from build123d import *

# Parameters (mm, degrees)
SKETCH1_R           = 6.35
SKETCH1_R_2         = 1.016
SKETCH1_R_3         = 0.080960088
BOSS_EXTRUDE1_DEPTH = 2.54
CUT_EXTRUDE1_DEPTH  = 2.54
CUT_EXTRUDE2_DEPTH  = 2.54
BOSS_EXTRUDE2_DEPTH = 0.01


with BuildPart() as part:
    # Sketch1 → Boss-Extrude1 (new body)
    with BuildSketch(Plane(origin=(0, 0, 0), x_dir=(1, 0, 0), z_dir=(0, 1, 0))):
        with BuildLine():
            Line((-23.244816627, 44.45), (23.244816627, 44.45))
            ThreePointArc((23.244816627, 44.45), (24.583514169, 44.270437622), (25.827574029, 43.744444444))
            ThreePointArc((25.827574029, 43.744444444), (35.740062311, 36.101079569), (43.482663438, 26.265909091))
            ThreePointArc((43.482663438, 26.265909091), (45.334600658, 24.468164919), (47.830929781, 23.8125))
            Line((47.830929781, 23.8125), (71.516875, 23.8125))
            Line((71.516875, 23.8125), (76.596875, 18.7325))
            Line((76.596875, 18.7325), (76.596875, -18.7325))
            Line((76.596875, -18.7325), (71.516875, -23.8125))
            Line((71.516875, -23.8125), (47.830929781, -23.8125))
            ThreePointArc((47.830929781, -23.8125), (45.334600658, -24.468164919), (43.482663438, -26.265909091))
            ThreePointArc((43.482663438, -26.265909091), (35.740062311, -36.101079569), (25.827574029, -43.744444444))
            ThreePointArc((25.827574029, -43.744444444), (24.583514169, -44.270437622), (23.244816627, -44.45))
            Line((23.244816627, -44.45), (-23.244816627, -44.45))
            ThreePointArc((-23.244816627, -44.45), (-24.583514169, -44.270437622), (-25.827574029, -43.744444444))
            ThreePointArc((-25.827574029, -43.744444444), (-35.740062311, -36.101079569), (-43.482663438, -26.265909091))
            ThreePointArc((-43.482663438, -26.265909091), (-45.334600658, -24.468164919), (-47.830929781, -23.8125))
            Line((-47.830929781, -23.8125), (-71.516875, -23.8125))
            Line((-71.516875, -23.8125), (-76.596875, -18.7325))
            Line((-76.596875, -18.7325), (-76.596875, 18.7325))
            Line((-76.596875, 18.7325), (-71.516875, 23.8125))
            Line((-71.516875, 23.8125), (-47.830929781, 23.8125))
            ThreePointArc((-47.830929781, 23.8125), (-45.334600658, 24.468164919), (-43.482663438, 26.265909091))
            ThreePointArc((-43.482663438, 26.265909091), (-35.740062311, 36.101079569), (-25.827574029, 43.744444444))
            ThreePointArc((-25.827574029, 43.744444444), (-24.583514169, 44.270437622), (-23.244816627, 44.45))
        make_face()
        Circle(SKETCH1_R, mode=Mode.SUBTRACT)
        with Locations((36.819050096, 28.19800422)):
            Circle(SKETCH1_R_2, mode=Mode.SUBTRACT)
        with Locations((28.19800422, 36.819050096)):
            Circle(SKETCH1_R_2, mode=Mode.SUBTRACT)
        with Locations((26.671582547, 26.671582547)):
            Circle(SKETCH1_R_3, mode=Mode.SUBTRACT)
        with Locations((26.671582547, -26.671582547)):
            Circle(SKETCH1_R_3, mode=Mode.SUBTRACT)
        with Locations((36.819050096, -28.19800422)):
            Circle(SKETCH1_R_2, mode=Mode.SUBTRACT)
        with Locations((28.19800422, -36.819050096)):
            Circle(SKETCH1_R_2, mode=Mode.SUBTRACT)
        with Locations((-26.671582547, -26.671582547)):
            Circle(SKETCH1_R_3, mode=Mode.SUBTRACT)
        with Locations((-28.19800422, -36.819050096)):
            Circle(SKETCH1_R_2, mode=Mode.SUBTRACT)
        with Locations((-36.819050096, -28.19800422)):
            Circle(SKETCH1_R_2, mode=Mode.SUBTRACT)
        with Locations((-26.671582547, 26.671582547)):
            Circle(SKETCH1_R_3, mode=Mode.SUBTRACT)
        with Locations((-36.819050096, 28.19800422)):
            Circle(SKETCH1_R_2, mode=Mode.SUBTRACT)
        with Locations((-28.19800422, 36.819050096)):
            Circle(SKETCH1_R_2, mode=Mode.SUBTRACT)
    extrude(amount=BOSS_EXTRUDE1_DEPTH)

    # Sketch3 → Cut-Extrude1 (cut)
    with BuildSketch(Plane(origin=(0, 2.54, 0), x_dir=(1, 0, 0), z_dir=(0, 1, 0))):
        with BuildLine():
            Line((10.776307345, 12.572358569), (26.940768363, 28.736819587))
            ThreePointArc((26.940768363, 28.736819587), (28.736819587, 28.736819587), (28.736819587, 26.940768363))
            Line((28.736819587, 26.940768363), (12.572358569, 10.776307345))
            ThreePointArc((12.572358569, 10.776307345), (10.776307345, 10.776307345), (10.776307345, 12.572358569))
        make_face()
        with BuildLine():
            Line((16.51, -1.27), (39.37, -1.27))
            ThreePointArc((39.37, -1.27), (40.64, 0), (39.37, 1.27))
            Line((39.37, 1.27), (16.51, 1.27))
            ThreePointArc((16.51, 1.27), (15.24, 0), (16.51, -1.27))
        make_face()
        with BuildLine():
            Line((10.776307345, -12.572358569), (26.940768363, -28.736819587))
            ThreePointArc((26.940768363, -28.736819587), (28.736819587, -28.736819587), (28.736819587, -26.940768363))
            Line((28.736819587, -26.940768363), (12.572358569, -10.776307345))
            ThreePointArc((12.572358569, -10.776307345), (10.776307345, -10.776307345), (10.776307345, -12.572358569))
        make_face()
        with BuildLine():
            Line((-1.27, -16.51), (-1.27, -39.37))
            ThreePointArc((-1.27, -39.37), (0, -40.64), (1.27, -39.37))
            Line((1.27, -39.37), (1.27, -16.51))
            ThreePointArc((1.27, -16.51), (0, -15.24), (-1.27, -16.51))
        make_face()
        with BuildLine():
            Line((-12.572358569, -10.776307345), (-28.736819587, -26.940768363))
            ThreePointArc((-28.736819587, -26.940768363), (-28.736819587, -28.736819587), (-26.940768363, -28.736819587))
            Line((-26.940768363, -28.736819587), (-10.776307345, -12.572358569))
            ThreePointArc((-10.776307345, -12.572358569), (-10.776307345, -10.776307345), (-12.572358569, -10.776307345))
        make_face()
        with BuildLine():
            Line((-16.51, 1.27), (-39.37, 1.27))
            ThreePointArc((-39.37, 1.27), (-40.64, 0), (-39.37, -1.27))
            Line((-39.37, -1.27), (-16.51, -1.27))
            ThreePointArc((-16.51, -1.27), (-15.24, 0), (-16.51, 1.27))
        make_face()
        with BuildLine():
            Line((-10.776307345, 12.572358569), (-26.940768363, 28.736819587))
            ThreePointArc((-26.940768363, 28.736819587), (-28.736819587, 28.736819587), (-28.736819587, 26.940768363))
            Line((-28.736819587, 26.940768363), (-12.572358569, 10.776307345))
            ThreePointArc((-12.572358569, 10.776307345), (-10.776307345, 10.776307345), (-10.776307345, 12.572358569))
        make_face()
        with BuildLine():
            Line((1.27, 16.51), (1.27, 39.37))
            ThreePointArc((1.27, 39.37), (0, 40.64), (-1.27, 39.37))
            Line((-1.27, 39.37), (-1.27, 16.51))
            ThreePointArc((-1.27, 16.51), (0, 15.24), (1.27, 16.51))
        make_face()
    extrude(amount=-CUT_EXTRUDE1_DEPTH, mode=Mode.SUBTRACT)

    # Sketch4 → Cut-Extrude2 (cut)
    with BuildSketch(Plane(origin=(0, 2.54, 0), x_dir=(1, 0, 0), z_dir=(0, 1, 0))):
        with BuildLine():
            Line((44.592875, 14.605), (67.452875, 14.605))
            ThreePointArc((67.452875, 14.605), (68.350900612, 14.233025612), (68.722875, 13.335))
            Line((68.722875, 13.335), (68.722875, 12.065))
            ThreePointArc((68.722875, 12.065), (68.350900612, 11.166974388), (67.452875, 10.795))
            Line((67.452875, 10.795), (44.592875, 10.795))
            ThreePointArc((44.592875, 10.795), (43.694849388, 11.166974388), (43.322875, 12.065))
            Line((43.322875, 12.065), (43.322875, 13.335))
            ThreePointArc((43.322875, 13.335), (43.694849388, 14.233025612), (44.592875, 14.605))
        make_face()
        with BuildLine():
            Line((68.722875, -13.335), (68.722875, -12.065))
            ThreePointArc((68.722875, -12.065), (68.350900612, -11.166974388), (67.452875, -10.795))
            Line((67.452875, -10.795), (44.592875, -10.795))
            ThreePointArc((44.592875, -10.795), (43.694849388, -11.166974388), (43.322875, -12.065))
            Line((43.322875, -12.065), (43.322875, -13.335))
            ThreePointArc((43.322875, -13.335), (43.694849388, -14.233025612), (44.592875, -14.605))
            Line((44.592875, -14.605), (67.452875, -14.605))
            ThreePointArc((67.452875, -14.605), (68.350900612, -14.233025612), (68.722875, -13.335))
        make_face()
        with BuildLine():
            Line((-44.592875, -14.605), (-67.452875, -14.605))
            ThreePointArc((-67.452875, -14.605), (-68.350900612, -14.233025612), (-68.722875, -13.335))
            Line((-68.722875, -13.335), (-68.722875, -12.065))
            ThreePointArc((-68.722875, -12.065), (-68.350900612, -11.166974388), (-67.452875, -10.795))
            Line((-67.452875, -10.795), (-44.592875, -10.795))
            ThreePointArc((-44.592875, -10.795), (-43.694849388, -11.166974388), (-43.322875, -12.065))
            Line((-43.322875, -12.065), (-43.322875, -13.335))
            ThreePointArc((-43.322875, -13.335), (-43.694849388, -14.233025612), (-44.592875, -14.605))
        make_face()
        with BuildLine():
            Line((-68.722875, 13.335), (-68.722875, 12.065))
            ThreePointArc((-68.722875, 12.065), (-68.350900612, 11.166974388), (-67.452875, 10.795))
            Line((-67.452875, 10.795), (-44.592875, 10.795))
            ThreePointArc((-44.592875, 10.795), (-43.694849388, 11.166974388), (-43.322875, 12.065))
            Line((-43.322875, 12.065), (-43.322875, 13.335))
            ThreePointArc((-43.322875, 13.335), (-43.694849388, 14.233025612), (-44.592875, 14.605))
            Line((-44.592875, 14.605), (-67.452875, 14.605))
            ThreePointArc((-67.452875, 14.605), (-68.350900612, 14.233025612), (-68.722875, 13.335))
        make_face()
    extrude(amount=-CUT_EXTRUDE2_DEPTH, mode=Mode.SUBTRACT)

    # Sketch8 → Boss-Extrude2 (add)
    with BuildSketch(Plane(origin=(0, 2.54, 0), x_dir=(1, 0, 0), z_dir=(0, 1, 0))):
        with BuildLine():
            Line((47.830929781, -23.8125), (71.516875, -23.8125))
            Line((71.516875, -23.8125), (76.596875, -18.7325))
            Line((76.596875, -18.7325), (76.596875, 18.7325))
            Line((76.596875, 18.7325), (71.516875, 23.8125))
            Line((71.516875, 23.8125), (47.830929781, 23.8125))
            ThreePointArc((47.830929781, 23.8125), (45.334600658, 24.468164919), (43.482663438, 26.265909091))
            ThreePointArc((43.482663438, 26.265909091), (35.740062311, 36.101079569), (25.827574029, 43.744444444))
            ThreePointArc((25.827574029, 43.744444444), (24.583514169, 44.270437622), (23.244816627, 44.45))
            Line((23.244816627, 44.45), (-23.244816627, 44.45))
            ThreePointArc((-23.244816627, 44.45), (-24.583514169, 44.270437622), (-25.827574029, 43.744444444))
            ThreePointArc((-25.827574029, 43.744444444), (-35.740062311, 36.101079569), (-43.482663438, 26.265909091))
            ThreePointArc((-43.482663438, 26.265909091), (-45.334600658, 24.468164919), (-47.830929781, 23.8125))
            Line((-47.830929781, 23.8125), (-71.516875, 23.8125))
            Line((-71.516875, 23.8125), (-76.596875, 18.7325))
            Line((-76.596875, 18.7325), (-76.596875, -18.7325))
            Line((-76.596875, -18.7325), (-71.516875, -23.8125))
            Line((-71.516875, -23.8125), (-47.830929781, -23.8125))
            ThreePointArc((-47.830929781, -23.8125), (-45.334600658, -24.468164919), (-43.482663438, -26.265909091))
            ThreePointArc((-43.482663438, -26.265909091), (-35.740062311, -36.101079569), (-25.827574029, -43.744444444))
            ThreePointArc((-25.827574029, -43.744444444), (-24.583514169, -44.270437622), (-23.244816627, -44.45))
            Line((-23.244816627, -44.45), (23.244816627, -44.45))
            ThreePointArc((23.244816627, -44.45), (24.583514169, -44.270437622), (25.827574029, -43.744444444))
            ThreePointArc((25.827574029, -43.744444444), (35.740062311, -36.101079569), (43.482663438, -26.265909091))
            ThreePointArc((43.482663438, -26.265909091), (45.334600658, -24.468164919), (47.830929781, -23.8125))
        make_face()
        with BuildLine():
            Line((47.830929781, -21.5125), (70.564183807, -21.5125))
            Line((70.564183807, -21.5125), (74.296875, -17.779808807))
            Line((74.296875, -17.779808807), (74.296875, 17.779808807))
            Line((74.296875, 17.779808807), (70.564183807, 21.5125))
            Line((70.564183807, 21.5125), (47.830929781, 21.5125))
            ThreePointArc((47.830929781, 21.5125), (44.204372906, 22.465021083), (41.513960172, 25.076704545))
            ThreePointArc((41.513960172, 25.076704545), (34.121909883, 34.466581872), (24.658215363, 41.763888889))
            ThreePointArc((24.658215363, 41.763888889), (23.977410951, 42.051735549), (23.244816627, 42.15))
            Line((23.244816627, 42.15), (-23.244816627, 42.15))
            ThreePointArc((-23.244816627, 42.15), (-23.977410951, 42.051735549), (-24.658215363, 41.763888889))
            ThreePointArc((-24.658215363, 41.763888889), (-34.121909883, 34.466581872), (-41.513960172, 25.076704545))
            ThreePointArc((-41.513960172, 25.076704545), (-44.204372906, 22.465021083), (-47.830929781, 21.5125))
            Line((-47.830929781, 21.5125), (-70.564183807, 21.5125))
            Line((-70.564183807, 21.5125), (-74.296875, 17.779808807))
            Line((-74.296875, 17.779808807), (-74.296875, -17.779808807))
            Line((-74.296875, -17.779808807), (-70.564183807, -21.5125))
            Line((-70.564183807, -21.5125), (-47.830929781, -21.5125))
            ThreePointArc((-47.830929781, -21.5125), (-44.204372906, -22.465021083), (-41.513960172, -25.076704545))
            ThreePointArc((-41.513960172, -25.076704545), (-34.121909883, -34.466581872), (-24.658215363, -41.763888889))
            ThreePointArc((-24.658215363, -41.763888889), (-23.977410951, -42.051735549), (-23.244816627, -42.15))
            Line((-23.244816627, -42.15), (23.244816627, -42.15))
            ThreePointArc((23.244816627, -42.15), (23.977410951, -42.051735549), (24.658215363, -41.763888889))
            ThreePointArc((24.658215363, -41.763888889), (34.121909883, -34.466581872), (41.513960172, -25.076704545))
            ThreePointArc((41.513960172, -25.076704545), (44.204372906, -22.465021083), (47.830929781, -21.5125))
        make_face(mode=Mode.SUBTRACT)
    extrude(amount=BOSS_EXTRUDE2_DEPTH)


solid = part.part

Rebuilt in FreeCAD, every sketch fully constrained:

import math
import FreeCAD as App
import Part
import Sketcher
from FreeCAD import Vector
Q = App.Units.Quantity

doc = App.newDocument("Part")
body = doc.addObject("PartDesign::Body", "Body")

# Sketch on XZ plane
sketch1 = body.newObject("Sketcher::SketchObject", "Sketch")
sketch1.AttachmentSupport = (doc.getObject("XZ_Plane"), [""])
sketch1.MapMode = "FlatFace"
sketch1.addGeometry([
    Part.LineSegment(Vector(23.244817, -44.45, 0), Vector(-23.244817, -44.45, 0)),  # 0
    Part.ArcOfCircle(Part.Circle(Vector(-23.244817, -39.37, 0), Vector(0, 0, 1), 5.08), math.radians(-120.558432), math.radians(-90)),  # 1
    Part.ArcOfCircle(Part.Circle(Vector(0, 0, 0), Vector(0, 0, 1), 50.8), math.radians(-148.865726), math.radians(-120.558432)),  # 2
    Part.ArcOfCircle(Part.Circle(Vector(-47.83093, -28.8925, 0), Vector(0, 0, 1), 5.08), math.radians(31.134274), math.radians(90)),  # 3
    Part.LineSegment(Vector(-47.83093, -23.8125, 0), Vector(-71.516875, -23.8125, 0)),  # 4
    Part.LineSegment(Vector(-71.516875, -23.8125, 0), Vector(-76.596875, -18.7325, 0)),  # 5
    Part.LineSegment(Vector(-76.596875, -18.7325, 0), Vector(-76.596875, 18.7325, 0)),  # 6
    Part.LineSegment(Vector(-76.596875, 18.7325, 0), Vector(-71.516875, 23.8125, 0)),  # 7
    Part.LineSegment(Vector(-71.516875, 23.8125, 0), Vector(-47.83093, 23.8125, 0)),  # 8
    Part.ArcOfCircle(Part.Circle(Vector(-47.83093, 28.8925, 0), Vector(0, 0, 1), 5.08), math.radians(-90), math.radians(-31.134274)),  # 9
    Part.ArcOfCircle(Part.Circle(Vector(0, 0, 0), Vector(0, 0, 1), 50.8), math.radians(120.558432), math.radians(148.865726)),  # 10
    Part.ArcOfCircle(Part.Circle(Vector(-23.244817, 39.37, 0), Vector(0, 0, 1), 5.08), math.radians(90), math.radians(120.558432)),  # 11
    Part.LineSegment(Vector(-23.244817, 44.45, 0), Vector(23.244817, 44.45, 0)),  # 12
    Part.ArcOfCircle(Part.Circle(Vector(23.244817, 39.37, 0), Vector(0, 0, 1), 5.08), math.radians(59.441568), math.radians(90)),  # 13
    Part.ArcOfCircle(Part.Circle(Vector(0, 0, 0), Vector(0, 0, 1), 50.8), math.radians(31.134274), math.radians(59.441568)),  # 14
    Part.ArcOfCircle(Part.Circle(Vector(47.83093, 28.8925, 0), Vector(0, 0, 1), 5.08), math.radians(-148.865726), math.radians(-90)),  # 15
    Part.LineSegment(Vector(47.83093, 23.8125, 0), Vector(71.516875, 23.8125, 0)),  # 16
    Part.LineSegment(Vector(71.516875, 23.8125, 0), Vector(76.596875, 18.7325, 0)),  # 17
    Part.LineSegment(Vector(76.596875, 18.7325, 0), Vector(76.596875, -18.7325, 0)),  # 18
    Part.LineSegment(Vector(76.596875, -18.7325, 0), Vector(71.516875, -23.8125, 0)),  # 19
    Part.LineSegment(Vector(71.516875, -23.8125, 0), Vector(47.83093, -23.8125, 0)),  # 20
    Part.ArcOfCircle(Part.Circle(Vector(47.83093, -28.8925, 0), Vector(0, 0, 1), 5.08), math.radians(90), math.radians(148.865726)),  # 21
    Part.ArcOfCircle(Part.Circle(Vector(0, 0, 0), Vector(0, 0, 1), 50.8), math.radians(-59.441568), math.radians(-31.134274)),  # 22
    Part.ArcOfCircle(Part.Circle(Vector(23.244817, -39.37, 0), Vector(0, 0, 1), 5.08), math.radians(-90), math.radians(-59.441568)),  # 23
    Part.Circle(Vector(28.198004, 36.81905, 0), Vector(0, 0, 1), 1.016),  # 24
    Part.Circle(Vector(36.81905, 28.198004, 0), Vector(0, 0, 1), 1.016),  # 25
    Part.Circle(Vector(26.671583, 26.671583, 0), Vector(0, 0, 1), 0.08096),  # 26
    Part.Circle(Vector(-28.198004, 36.81905, 0), Vector(0, 0, 1), 1.016),  # 27
    Part.Circle(Vector(-26.671583, 26.671583, 0), Vector(0, 0, 1), 0.08096),  # 28
    Part.Circle(Vector(-36.81905, 28.198004, 0), Vector(0, 0, 1), 1.016),  # 29
    Part.Circle(Vector(36.81905, -28.198004, 0), Vector(0, 0, 1), 1.016),  # 30
    Part.Circle(Vector(26.671583, -26.671583, 0), Vector(0, 0, 1), 0.08096),  # 31
    Part.Circle(Vector(28.198004, -36.81905, 0), Vector(0, 0, 1), 1.016),  # 32
    Part.Circle(Vector(0, 0, 0), Vector(0, 0, 1), 6.35),  # 33
    Part.Circle(Vector(-26.671583, -26.671583, 0), Vector(0, 0, 1), 0.08096),  # 34
    Part.Circle(Vector(-36.81905, -28.198004, 0), Vector(0, 0, 1), 1.016),  # 35
    Part.Circle(Vector(-28.198004, -36.81905, 0), Vector(0, 0, 1), 1.016),  # 36
], False)
sketch1.addConstraint([
    Sketcher.Constraint("Tangent", 0, 2, 1, 2),
    Sketcher.Constraint("Tangent", 1, 1, 2, 2),
    Sketcher.Constraint("Tangent", 2, 1, 3, 1),
    Sketcher.Constraint("Tangent", 3, 2, 4, 1),
    Sketcher.Constraint("Coincident", 4, 2, 5, 1),
    Sketcher.Constraint("Coincident", 5, 2, 6, 1),
    Sketcher.Constraint("Coincident", 6, 2, 7, 1),
    Sketcher.Constraint("Coincident", 7, 2, 8, 1),
    Sketcher.Constraint("Tangent", 8, 2, 9, 1),
    Sketcher.Constraint("Tangent", 9, 2, 10, 2),
    Sketcher.Constraint("Tangent", 10, 1, 11, 2),
    Sketcher.Constraint("Tangent", 11, 1, 12, 1),
    Sketcher.Constraint("Tangent", 12, 2, 13, 2),
    Sketcher.Constraint("Tangent", 13, 1, 14, 2),
    Sketcher.Constraint("Tangent", 14, 1, 15, 1),
    Sketcher.Constraint("Tangent", 15, 2, 16, 1),
    Sketcher.Constraint("Coincident", 16, 2, 17, 1),
    Sketcher.Constraint("Coincident", 17, 2, 18, 1),
    Sketcher.Constraint("Coincident", 18, 2, 19, 1),
    Sketcher.Constraint("Coincident", 19, 2, 20, 1),
    Sketcher.Constraint("Tangent", 20, 2, 21, 1),
    Sketcher.Constraint("Tangent", 21, 2, 22, 2),
    Sketcher.Constraint("Tangent", 22, 1, 23, 2),
    Sketcher.Constraint("Tangent", 23, 1, 0, 1),
    Sketcher.Constraint("Horizontal", 0),
    Sketcher.Constraint("Horizontal", 4),
    Sketcher.Constraint("Vertical", 6),
    Sketcher.Constraint("Horizontal", 8),
    Sketcher.Constraint("Horizontal", 12),
    Sketcher.Constraint("Horizontal", 16),
    Sketcher.Constraint("Vertical", 18),
    Sketcher.Constraint("Horizontal", 20),
    Sketcher.Constraint("Coincident", 2, 3, -1, 1),
    Sketcher.Constraint("Coincident", 10, 3, -1, 1),
    Sketcher.Constraint("Coincident", 14, 3, -1, 1),
    Sketcher.Constraint("Coincident", 22, 3, -1, 1),
    Sketcher.Constraint("Coincident", 33, 3, -1, 1),
    Sketcher.Constraint("Equal", 1, 3),
    Sketcher.Constraint("Equal", 3, 9),
    Sketcher.Constraint("Equal", 2, 10),
    Sketcher.Constraint("Equal", 9, 11),
    Sketcher.Constraint("Equal", 11, 13),
    Sketcher.Constraint("Equal", 10, 14),
    Sketcher.Constraint("Equal", 13, 15),
    Sketcher.Constraint("Equal", 15, 21),
    Sketcher.Constraint("Equal", 14, 22),
    Sketcher.Constraint("Equal", 21, 23),
    Sketcher.Constraint("Equal", 24, 25),
    Sketcher.Constraint("Equal", 25, 27),
    Sketcher.Constraint("Equal", 26, 28),
    Sketcher.Constraint("Equal", 27, 29),
    Sketcher.Constraint("Equal", 29, 30),
    Sketcher.Constraint("Equal", 28, 31),
    Sketcher.Constraint("Equal", 30, 32),
    Sketcher.Constraint("Equal", 31, 34),
    Sketcher.Constraint("Equal", 32, 35),
    Sketcher.Constraint("Equal", 35, 36),
    Sketcher.Constraint("Symmetric", 29, 3, 30, 3, -1, 1),
    Sketcher.Constraint("Symmetric", 28, 3, 31, 3, -1, 1),
    Sketcher.Constraint("Symmetric", 27, 3, 32, 3, -1, 1),
    Sketcher.Constraint("Symmetric", 26, 3, 34, 3, -1, 1),
    Sketcher.Constraint("Symmetric", 25, 3, 35, 3, -1, 1),
    Sketcher.Constraint("Symmetric", 24, 3, 36, 3, -1, 1),
    Sketcher.Constraint("Symmetric", 4, 2, 16, 2, -1, 1),
    Sketcher.Constraint("Symmetric", 5, 2, 17, 2, -1, 1),
    Sketcher.Constraint("Symmetric", 7, 2, 19, 2, -1, 1),
    Sketcher.Constraint("Symmetric", 24, 3, 27, 3, -2),
    Sketcher.Constraint("Symmetric", 26, 3, 28, 3, -2),
    Sketcher.Constraint("Symmetric", 25, 3, 29, 3, -2),
    Sketcher.Constraint("Symmetric", 7, 2, 16, 2, -2),
    Sketcher.Constraint("Perpendicular", 5, 7),
    Sketcher.Constraint("Perpendicular", 17, 19),
    Sketcher.Constraint("Horizontal", 6, 2, 17, 2),
    Sketcher.Constraint("Vertical", 1, 3, 11, 3),
    Sketcher.Constraint("Radius", 2, Q("2 in")),
    Sketcher.Constraint("Diameter", 33, Q("0.5 in")),
    Sketcher.Constraint("Radius", 1, Q("0.2 in")),
    Sketcher.Constraint("Diameter", 24, Q("0.08 in")),
    Sketcher.Constraint("DistanceY", 1, 3, 11, 3, Q("3.1 in")),
    Sketcher.Constraint("DistanceX", 5, 2, 4, 2, Q("0.2 in")),
    Sketcher.Constraint("DistanceY", 6, 1, 6, 2, Q("1.475 in")),
    Sketcher.Constraint("Diameter", 26, Q("0.16192 mm")),
    Sketcher.Constraint("DistanceX", 5, 2, -1, 1, Q("3.015625 in")),
    Sketcher.Constraint("DistanceY", -1, 1, 24, 3, Q("36.81905 mm")),
    Sketcher.Constraint("DistanceX", -1, 1, 25, 3, Q("36.81905 mm")),
    Sketcher.Constraint("DistanceX", 26, 3, 24, 3, Q("1.526422 mm")),
    Sketcher.Constraint("DistanceY", 26, 3, 25, 3, Q("1.526422 mm")),
    Sketcher.Constraint("DistanceX", 36, 3, 1, 1, Q("2.37043 mm")),
    Sketcher.Constraint("DistanceY", 1, 1, 34, 3, Q("17.072862 mm")),
])
pad1 = body.newObject("PartDesign::Pad", "Pad")
pad1.Profile = sketch1
pad1.Length = Q("0.1 in")
pad1.Reversed = True

# Sketch on XZ plane
sketch2 = body.newObject("Sketcher::SketchObject", "Sketch001")
sketch2.AttachmentSupport = (doc.getObject("XZ_Plane"), [""])
sketch2.MapMode = "FlatFace"
sketch2.AttachmentOffset = App.Placement(Vector(0, 0, -0.1 * 25.4), App.Rotation())
sketch2.addGeometry([
    Part.LineSegment(Vector(26.940768, -28.73682, 0), Vector(10.776307, -12.572359, 0)),  # 0
    Part.ArcOfCircle(Part.Circle(Vector(11.674333, -11.674333, 0), Vector(0, 0, 1), 1.27), math.radians(45), math.radians(225)),  # 1
    Part.LineSegment(Vector(12.572359, -10.776307, 0), Vector(28.73682, -26.940768, 0)),  # 2
    Part.ArcOfCircle(Part.Circle(Vector(27.838794, -27.838794, 0), Vector(0, 0, 1), 1.27), math.radians(-135), math.radians(45)),  # 3
    Part.LineSegment(Vector(16.51, 1.27, 0), Vector(39.37, 1.27, 0)),  # 4
    Part.ArcOfCircle(Part.Circle(Vector(39.37, 0, 0), Vector(0, 0, 1), 1.27), math.radians(-90), math.radians(90)),  # 5
    Part.LineSegment(Vector(39.37, -1.27, 0), Vector(16.51, -1.27, 0)),  # 6
    Part.ArcOfCircle(Part.Circle(Vector(16.51, 0, 0), Vector(0, 0, 1), 1.27), math.radians(90), math.radians(270)),  # 7
    Part.LineSegment(Vector(10.776307, 12.572359, 0), Vector(26.940768, 28.73682, 0)),  # 8
    Part.ArcOfCircle(Part.Circle(Vector(27.838794, 27.838794, 0), Vector(0, 0, 1), 1.27), math.radians(-45), math.radians(135)),  # 9
    Part.LineSegment(Vector(28.73682, 26.940768, 0), Vector(12.572359, 10.776307, 0)),  # 10
    Part.ArcOfCircle(Part.Circle(Vector(11.674333, 11.674333, 0), Vector(0, 0, 1), 1.27), math.radians(135), math.radians(315)),  # 11
    Part.LineSegment(Vector(-1.27, 16.51, 0), Vector(-1.27, 39.37, 0)),  # 12
    Part.ArcOfCircle(Part.Circle(Vector(0, 39.37, 0), Vector(0, 0, 1), 1.27), math.radians(0), math.radians(180)),  # 13
    Part.LineSegment(Vector(1.27, 39.37, 0), Vector(1.27, 16.51, 0)),  # 14
    Part.ArcOfCircle(Part.Circle(Vector(0, 16.51, 0), Vector(0, 0, 1), 1.27), math.radians(180), math.radians(360)),  # 15
    Part.LineSegment(Vector(-12.572359, 10.776307, 0), Vector(-28.73682, 26.940768, 0)),  # 16
    Part.ArcOfCircle(Part.Circle(Vector(-27.838794, 27.838794, 0), Vector(0, 0, 1), 1.27), math.radians(45), math.radians(225)),  # 17
    Part.LineSegment(Vector(-26.940768, 28.73682, 0), Vector(-10.776307, 12.572359, 0)),  # 18
    Part.ArcOfCircle(Part.Circle(Vector(-11.674333, 11.674333, 0), Vector(0, 0, 1), 1.27), math.radians(-135), math.radians(45)),  # 19
    Part.LineSegment(Vector(-16.51, -1.27, 0), Vector(-39.37, -1.27, 0)),  # 20
    Part.ArcOfCircle(Part.Circle(Vector(-39.37, 0, 0), Vector(0, 0, 1), 1.27), math.radians(90), math.radians(270)),  # 21
    Part.LineSegment(Vector(-39.37, 1.27, 0), Vector(-16.51, 1.27, 0)),  # 22
    Part.ArcOfCircle(Part.Circle(Vector(-16.51, 0, 0), Vector(0, 0, 1), 1.27), math.radians(-90), math.radians(90)),  # 23
    Part.LineSegment(Vector(-10.776307, -12.572359, 0), Vector(-26.940768, -28.73682, 0)),  # 24
    Part.ArcOfCircle(Part.Circle(Vector(-27.838794, -27.838794, 0), Vector(0, 0, 1), 1.27), math.radians(135), math.radians(315)),  # 25
    Part.LineSegment(Vector(-28.73682, -26.940768, 0), Vector(-12.572359, -10.776307, 0)),  # 26
    Part.ArcOfCircle(Part.Circle(Vector(-11.674333, -11.674333, 0), Vector(0, 0, 1), 1.27), math.radians(-45), math.radians(135)),  # 27
    Part.LineSegment(Vector(1.27, -16.51, 0), Vector(1.27, -39.37, 0)),  # 28
    Part.ArcOfCircle(Part.Circle(Vector(0, -39.37, 0), Vector(0, 0, 1), 1.27), math.radians(180), math.radians(360)),  # 29
    Part.LineSegment(Vector(-1.27, -39.37, 0), Vector(-1.27, -16.51, 0)),  # 30
    Part.ArcOfCircle(Part.Circle(Vector(0, -16.51, 0), Vector(0, 0, 1), 1.27), math.radians(0), math.radians(180)),  # 31
], False)
sketch2.addConstraint([
    Sketcher.Constraint("Tangent", 0, 2, 1, 2),
    Sketcher.Constraint("Tangent", 1, 1, 2, 1),
    Sketcher.Constraint("Tangent", 2, 2, 3, 2),
    Sketcher.Constraint("Tangent", 3, 1, 0, 1),
    Sketcher.Constraint("Tangent", 4, 2, 5, 2),
    Sketcher.Constraint("Tangent", 5, 1, 6, 1),
    Sketcher.Constraint("Tangent", 6, 2, 7, 2),
    Sketcher.Constraint("Tangent", 7, 1, 4, 1),
    Sketcher.Constraint("Tangent", 8, 2, 9, 2),
    Sketcher.Constraint("Tangent", 9, 1, 10, 1),
    Sketcher.Constraint("Tangent", 10, 2, 11, 2),
    Sketcher.Constraint("Tangent", 11, 1, 8, 1),
    Sketcher.Constraint("Tangent", 12, 2, 13, 2),
    Sketcher.Constraint("Tangent", 13, 1, 14, 1),
    Sketcher.Constraint("Tangent", 14, 2, 15, 2),
    Sketcher.Constraint("Tangent", 15, 1, 12, 1),
    Sketcher.Constraint("Tangent", 16, 2, 17, 2),
    Sketcher.Constraint("Tangent", 17, 1, 18, 1),
    Sketcher.Constraint("Tangent", 18, 2, 19, 2),
    Sketcher.Constraint("Tangent", 19, 1, 16, 1),
    Sketcher.Constraint("Tangent", 20, 2, 21, 2),
    Sketcher.Constraint("Tangent", 21, 1, 22, 1),
    Sketcher.Constraint("Tangent", 22, 2, 23, 2),
    Sketcher.Constraint("Tangent", 23, 1, 20, 1),
    Sketcher.Constraint("Tangent", 24, 2, 25, 2),
    Sketcher.Constraint("Tangent", 25, 1, 26, 1),
    Sketcher.Constraint("Tangent", 26, 2, 27, 2),
    Sketcher.Constraint("Tangent", 27, 1, 24, 1),
    Sketcher.Constraint("Tangent", 28, 2, 29, 2),
    Sketcher.Constraint("Tangent", 29, 1, 30, 1),
    Sketcher.Constraint("Tangent", 30, 2, 31, 2),
    Sketcher.Constraint("Tangent", 31, 1, 28, 1),
    Sketcher.Constraint("Horizontal", 4),
    Sketcher.Constraint("Horizontal", 6),
    Sketcher.Constraint("Vertical", 12),
    Sketcher.Constraint("Vertical", 14),
    Sketcher.Constraint("Horizontal", 20),
    Sketcher.Constraint("Horizontal", 22),
    Sketcher.Constraint("Vertical", 28),
    Sketcher.Constraint("Vertical", 30),
    Sketcher.Constraint("Equal", 1, 3),
    Sketcher.Constraint("Equal", 3, 5),
    Sketcher.Constraint("Equal", 7, 9),
    Sketcher.Constraint("Equal", 9, 11),
    Sketcher.Constraint("Equal", 11, 13),
    Sketcher.Constraint("Equal", 15, 17),
    Sketcher.Constraint("Equal", 17, 19),
    Sketcher.Constraint("Equal", 19, 21),
    Sketcher.Constraint("Equal", 23, 25),
    Sketcher.Constraint("Equal", 25, 27),
    Sketcher.Constraint("Equal", 27, 29),
    Sketcher.Constraint("Symmetric", 3, 3, 17, 3, -1, 1),
    Sketcher.Constraint("Symmetric", 1, 3, 19, 3, -1, 1),
    Sketcher.Constraint("Symmetric", 5, 3, 21, 3, -1, 1),
    Sketcher.Constraint("Symmetric", 9, 3, 25, 3, -1, 1),
    Sketcher.Constraint("Symmetric", 11, 3, 27, 3, -1, 1),
    Sketcher.Constraint("Symmetric", 13, 3, 29, 3, -1, 1),
    Sketcher.Constraint("Symmetric", 9, 3, 17, 3, -2),
    Sketcher.Constraint("Symmetric", 11, 3, 19, 3, -2),
    Sketcher.Constraint("Symmetric", 7, 3, 23, 3, -2),
    Sketcher.Constraint("Symmetric", 15, 3, 31, 3, -1),
    Sketcher.Constraint("Perpendicular", 2, 8),
    Sketcher.Constraint("Equal", 22, 12),
    Sketcher.Constraint("Radius", 1, Q("0.05 in")),
    Sketcher.Constraint("DistanceX", 4, 1, 4, 2, Q("0.9 in")),
    Sketcher.Constraint("Distance", 0, Q("0.9 in")),
    Sketcher.Constraint("DistanceX", -1, 1, 5, 3, Q("1.55 in")),
    Sketcher.Constraint("DistanceY", -1, 1, 13, 3, Q("1.55 in")),
    Sketcher.Constraint("DistanceY", 0, 2, -1, 1, Q("12.572359 mm")),
    Sketcher.Constraint("DistanceX", -1, 1, 1, 1, Q("12.572359 mm")),
])
pocket1 = body.newObject("PartDesign::Pocket", "Pocket")
pocket1.Profile = sketch2
pocket1.Length = Q("0.1 in")
pocket1.Reversed = True

# Sketch on XZ plane
sketch3 = body.newObject("Sketcher::SketchObject", "Sketch002")
sketch3.AttachmentSupport = (doc.getObject("XZ_Plane"), [""])
sketch3.MapMode = "FlatFace"
sketch3.AttachmentOffset = App.Placement(Vector(0, 0, -0.1 * 25.4), App.Rotation())
sketch3.addGeometry([
    Part.LineSegment(Vector(67.452875, -14.605, 0), Vector(44.592875, -14.605, 0)),  # 0
    Part.ArcOfCircle(Part.Circle(Vector(44.592875, -13.335, 0), Vector(0, 0, 1), 1.27), math.radians(180), math.radians(270)),  # 1
    Part.LineSegment(Vector(43.322875, -13.335, 0), Vector(43.322875, -12.065, 0)),  # 2
    Part.ArcOfCircle(Part.Circle(Vector(44.592875, -12.065, 0), Vector(0, 0, 1), 1.27), math.radians(90), math.radians(180)),  # 3
    Part.LineSegment(Vector(44.592875, -10.795, 0), Vector(67.452875, -10.795, 0)),  # 4
    Part.ArcOfCircle(Part.Circle(Vector(67.452875, -12.065, 0), Vector(0, 0, 1), 1.27), math.radians(0), math.radians(90)),  # 5
    Part.LineSegment(Vector(68.722875, -12.065, 0), Vector(68.722875, -13.335, 0)),  # 6
    Part.ArcOfCircle(Part.Circle(Vector(67.452875, -13.335, 0), Vector(0, 0, 1), 1.27), math.radians(-90), math.radians(0)),  # 7
    Part.LineSegment(Vector(68.722875, 13.335, 0), Vector(68.722875, 12.065, 0)),  # 8
    Part.ArcOfCircle(Part.Circle(Vector(67.452875, 12.065, 0), Vector(0, 0, 1), 1.27), math.radians(-90), math.radians(0)),  # 9
    Part.LineSegment(Vector(67.452875, 10.795, 0), Vector(44.592875, 10.795, 0)),  # 10
    Part.ArcOfCircle(Part.Circle(Vector(44.592875, 12.065, 0), Vector(0, 0, 1), 1.27), math.radians(180), math.radians(270)),  # 11
    Part.LineSegment(Vector(43.322875, 12.065, 0), Vector(43.322875, 13.335, 0)),  # 12
    Part.ArcOfCircle(Part.Circle(Vector(44.592875, 13.335, 0), Vector(0, 0, 1), 1.27), math.radians(90), math.radians(180)),  # 13
    Part.LineSegment(Vector(44.592875, 14.605, 0), Vector(67.452875, 14.605, 0)),  # 14
    Part.ArcOfCircle(Part.Circle(Vector(67.452875, 13.335, 0), Vector(0, 0, 1), 1.27), math.radians(0), math.radians(90)),  # 15
    Part.LineSegment(Vector(-67.452875, 14.605, 0), Vector(-44.592875, 14.605, 0)),  # 16
    Part.ArcOfCircle(Part.Circle(Vector(-44.592875, 13.335, 0), Vector(0, 0, 1), 1.27), math.radians(0), math.radians(90)),  # 17
    Part.LineSegment(Vector(-43.322875, 13.335, 0), Vector(-43.322875, 12.065, 0)),  # 18
    Part.ArcOfCircle(Part.Circle(Vector(-44.592875, 12.065, 0), Vector(0, 0, 1), 1.27), math.radians(-90), math.radians(0)),  # 19
    Part.LineSegment(Vector(-44.592875, 10.795, 0), Vector(-67.452875, 10.795, 0)),  # 20
    Part.ArcOfCircle(Part.Circle(Vector(-67.452875, 12.065, 0), Vector(0, 0, 1), 1.27), math.radians(180), math.radians(270)),  # 21
    Part.LineSegment(Vector(-68.722875, 12.065, 0), Vector(-68.722875, 13.335, 0)),  # 22
    Part.ArcOfCircle(Part.Circle(Vector(-67.452875, 13.335, 0), Vector(0, 0, 1), 1.27), math.radians(90), math.radians(180)),  # 23
    Part.LineSegment(Vector(-68.722875, -13.335, 0), Vector(-68.722875, -12.065, 0)),  # 24
    Part.ArcOfCircle(Part.Circle(Vector(-67.452875, -12.065, 0), Vector(0, 0, 1), 1.27), math.radians(90), math.radians(180)),  # 25
    Part.LineSegment(Vector(-67.452875, -10.795, 0), Vector(-44.592875, -10.795, 0)),  # 26
    Part.ArcOfCircle(Part.Circle(Vector(-44.592875, -12.065, 0), Vector(0, 0, 1), 1.27), math.radians(0), math.radians(90)),  # 27
    Part.LineSegment(Vector(-43.322875, -12.065, 0), Vector(-43.322875, -13.335, 0)),  # 28
    Part.ArcOfCircle(Part.Circle(Vector(-44.592875, -13.335, 0), Vector(0, 0, 1), 1.27), math.radians(-90), math.radians(0)),  # 29
    Part.LineSegment(Vector(-44.592875, -14.605, 0), Vector(-67.452875, -14.605, 0)),  # 30
    Part.ArcOfCircle(Part.Circle(Vector(-67.452875, -13.335, 0), Vector(0, 0, 1), 1.27), math.radians(180), math.radians(270)),  # 31
], False)
sketch3.addConstraint([
    Sketcher.Constraint("Tangent", 0, 2, 1, 2),
    Sketcher.Constraint("Tangent", 1, 1, 2, 1),
    Sketcher.Constraint("Tangent", 2, 2, 3, 2),
    Sketcher.Constraint("Tangent", 3, 1, 4, 1),
    Sketcher.Constraint("Tangent", 4, 2, 5, 2),
    Sketcher.Constraint("Tangent", 5, 1, 6, 1),
    Sketcher.Constraint("Tangent", 6, 2, 7, 2),
    Sketcher.Constraint("Tangent", 7, 1, 0, 1),
    Sketcher.Constraint("Tangent", 8, 2, 9, 2),
    Sketcher.Constraint("Tangent", 9, 1, 10, 1),
    Sketcher.Constraint("Tangent", 10, 2, 11, 2),
    Sketcher.Constraint("Tangent", 11, 1, 12, 1),
    Sketcher.Constraint("Tangent", 12, 2, 13, 2),
    Sketcher.Constraint("Tangent", 13, 1, 14, 1),
    Sketcher.Constraint("Tangent", 14, 2, 15, 2),
    Sketcher.Constraint("Tangent", 15, 1, 8, 1),
    Sketcher.Constraint("Tangent", 16, 2, 17, 2),
    Sketcher.Constraint("Tangent", 17, 1, 18, 1),
    Sketcher.Constraint("Tangent", 18, 2, 19, 2),
    Sketcher.Constraint("Tangent", 19, 1, 20, 1),
    Sketcher.Constraint("Tangent", 20, 2, 21, 2),
    Sketcher.Constraint("Tangent", 21, 1, 22, 1),
    Sketcher.Constraint("Tangent", 22, 2, 23, 2),
    Sketcher.Constraint("Tangent", 23, 1, 16, 1),
    Sketcher.Constraint("Tangent", 24, 2, 25, 2),
    Sketcher.Constraint("Tangent", 25, 1, 26, 1),
    Sketcher.Constraint("Tangent", 26, 2, 27, 2),
    Sketcher.Constraint("Tangent", 27, 1, 28, 1),
    Sketcher.Constraint("Tangent", 28, 2, 29, 2),
    Sketcher.Constraint("Tangent", 29, 1, 30, 1),
    Sketcher.Constraint("Tangent", 30, 2, 31, 2),
    Sketcher.Constraint("Tangent", 31, 1, 24, 1),
    Sketcher.Constraint("Horizontal", 0),
    Sketcher.Constraint("Vertical", 2),
    Sketcher.Constraint("Horizontal", 4),
    Sketcher.Constraint("Vertical", 6),
    Sketcher.Constraint("Vertical", 8),
    Sketcher.Constraint("Horizontal", 10),
    Sketcher.Constraint("Vertical", 12),
    Sketcher.Constraint("Horizontal", 14),
    Sketcher.Constraint("Horizontal", 16),
    Sketcher.Constraint("Vertical", 18),
    Sketcher.Constraint("Horizontal", 20),
    Sketcher.Constraint("Vertical", 22),
    Sketcher.Constraint("Vertical", 24),
    Sketcher.Constraint("Horizontal", 26),
    Sketcher.Constraint("Vertical", 28),
    Sketcher.Constraint("Horizontal", 30),
    Sketcher.Constraint("Equal", 1, 3),
    Sketcher.Constraint("Equal", 3, 5),
    Sketcher.Constraint("Equal", 5, 7),
    Sketcher.Constraint("Equal", 7, 9),
    Sketcher.Constraint("Equal", 9, 11),
    Sketcher.Constraint("Equal", 11, 13),
    Sketcher.Constraint("Equal", 13, 15),
    Sketcher.Constraint("Equal", 15, 17),
    Sketcher.Constraint("Equal", 17, 19),
    Sketcher.Constraint("Equal", 19, 21),
    Sketcher.Constraint("Equal", 21, 23),
    Sketcher.Constraint("Equal", 23, 25),
    Sketcher.Constraint("Equal", 25, 27),
    Sketcher.Constraint("Equal", 27, 29),
    Sketcher.Constraint("Equal", 29, 31),
    Sketcher.Constraint("Symmetric", 1, 3, 17, 3, -1, 1),
    Sketcher.Constraint("Symmetric", 5, 3, 21, 3, -1, 1),
    Sketcher.Constraint("Symmetric", 9, 3, 25, 3, -1, 1),
    Sketcher.Constraint("Symmetric", 13, 3, 29, 3, -1, 1),
    Sketcher.Constraint("Symmetric", 13, 3, 17, 3, -2),
    Sketcher.Constraint("Symmetric", 9, 3, 21, 3, -2),
    Sketcher.Constraint("Radius", 1, Q("0.05 in")),
    Sketcher.Constraint("DistanceX", 0, 2, 0, 1, Q("0.9 in")),
    Sketcher.Constraint("DistanceY", 7, 3, 9, 3, Q("1 in")),
    Sketcher.Constraint("DistanceY", 2, 1, 2, 2, Q("0.05 in")),
    Sketcher.Constraint("DistanceX", 17, 3, 13, 3, Q("89.18575 mm")),
])
pocket2 = body.newObject("PartDesign::Pocket", "Pocket001")
pocket2.Profile = sketch3
pocket2.Length = Q("0.1 in")
pocket2.Reversed = True

# Sketch on XZ plane
sketch4 = body.newObject("Sketcher::SketchObject", "Sketch003")
sketch4.AttachmentSupport = (doc.getObject("XZ_Plane"), [""])
sketch4.MapMode = "FlatFace"
sketch4.AttachmentOffset = App.Placement(Vector(0, 0, -0.1 * 25.4), App.Rotation())
sketch4.addGeometry([
    Part.LineSegment(Vector(47.83093, 23.8125, 0), Vector(71.516875, 23.8125, 0)),  # 0
    Part.LineSegment(Vector(71.516875, 23.8125, 0), Vector(76.596875, 18.7325, 0)),  # 1
    Part.LineSegment(Vector(76.596875, 18.7325, 0), Vector(76.596875, -18.7325, 0)),  # 2
    Part.LineSegment(Vector(76.596875, -18.7325, 0), Vector(71.516875, -23.8125, 0)),  # 3
    Part.LineSegment(Vector(71.516875, -23.8125, 0), Vector(47.83093, -23.8125, 0)),  # 4
    Part.ArcOfCircle(Part.Circle(Vector(47.83093, -28.8925, 0), Vector(0, 0, 1), 5.08), math.radians(90), math.radians(148.865726)),  # 5
    Part.ArcOfCircle(Part.Circle(Vector(0, 0, 0), Vector(0, 0, 1), 50.8), math.radians(-59.441568), math.radians(-31.134274)),  # 6
    Part.ArcOfCircle(Part.Circle(Vector(23.244817, -39.37, 0), Vector(0, 0, 1), 5.08), math.radians(-90), math.radians(-59.441568)),  # 7
    Part.LineSegment(Vector(23.244817, -44.45, 0), Vector(-23.244817, -44.45, 0)),  # 8
    Part.ArcOfCircle(Part.Circle(Vector(-23.244817, -39.37, 0), Vector(0, 0, 1), 5.08), math.radians(-120.558432), math.radians(-90)),  # 9
    Part.ArcOfCircle(Part.Circle(Vector(0, 0, 0), Vector(0, 0, 1), 50.8), math.radians(-148.865726), math.radians(-120.558432)),  # 10
    Part.ArcOfCircle(Part.Circle(Vector(-47.83093, -28.8925, 0), Vector(0, 0, 1), 5.08), math.radians(31.134274), math.radians(90)),  # 11
    Part.LineSegment(Vector(-47.83093, -23.8125, 0), Vector(-71.516875, -23.8125, 0)),  # 12
    Part.LineSegment(Vector(-71.516875, -23.8125, 0), Vector(-76.596875, -18.7325, 0)),  # 13
    Part.LineSegment(Vector(-76.596875, -18.7325, 0), Vector(-76.596875, 18.7325, 0)),  # 14
    Part.LineSegment(Vector(-76.596875, 18.7325, 0), Vector(-71.516875, 23.8125, 0)),  # 15
    Part.LineSegment(Vector(-71.516875, 23.8125, 0), Vector(-47.83093, 23.8125, 0)),  # 16
    Part.ArcOfCircle(Part.Circle(Vector(-47.83093, 28.8925, 0), Vector(0, 0, 1), 5.08), math.radians(-90), math.radians(-31.134274)),  # 17
    Part.ArcOfCircle(Part.Circle(Vector(0, 0, 0), Vector(0, 0, 1), 50.8), math.radians(120.558432), math.radians(148.865726)),  # 18
    Part.ArcOfCircle(Part.Circle(Vector(-23.244817, 39.37, 0), Vector(0, 0, 1), 5.08), math.radians(90), math.radians(120.558432)),  # 19
    Part.LineSegment(Vector(-23.244817, 44.45, 0), Vector(23.244817, 44.45, 0)),  # 20
    Part.ArcOfCircle(Part.Circle(Vector(23.244817, 39.37, 0), Vector(0, 0, 1), 5.08), math.radians(59.441568), math.radians(90)),  # 21
    Part.ArcOfCircle(Part.Circle(Vector(0, 0, 0), Vector(0, 0, 1), 50.8), math.radians(31.134274), math.radians(59.441568)),  # 22
    Part.ArcOfCircle(Part.Circle(Vector(47.83093, 28.8925, 0), Vector(0, 0, 1), 5.08), math.radians(-148.865726), math.radians(-90)),  # 23
    Part.LineSegment(Vector(70.564184, 21.5125, 0), Vector(47.83093, 21.5125, 0)),  # 24
    Part.ArcOfCircle(Part.Circle(Vector(47.83093, 28.8925, 0), Vector(0, 0, 1), 7.38), math.radians(-148.865726), math.radians(-90)),  # 25
    Part.ArcOfCircle(Part.Circle(Vector(0, 0, 0), Vector(0, 0, 1), 48.5), math.radians(31.134274), math.radians(59.441568)),  # 26
    Part.ArcOfCircle(Part.Circle(Vector(23.244817, 39.37, 0), Vector(0, 0, 1), 2.78), math.radians(59.441568), math.radians(90)),  # 27
    Part.LineSegment(Vector(23.244817, 42.15, 0), Vector(-23.244817, 42.15, 0)),  # 28
    Part.ArcOfCircle(Part.Circle(Vector(-23.244817, 39.37, 0), Vector(0, 0, 1), 2.78), math.radians(90), math.radians(120.558432)),  # 29
    Part.ArcOfCircle(Part.Circle(Vector(0, 0, 0), Vector(0, 0, 1), 48.5), math.radians(120.558432), math.radians(148.865726)),  # 30
    Part.ArcOfCircle(Part.Circle(Vector(-47.83093, 28.8925, 0), Vector(0, 0, 1), 7.38), math.radians(-90), math.radians(-31.134274)),  # 31
    Part.LineSegment(Vector(-47.83093, 21.5125, 0), Vector(-70.564184, 21.5125, 0)),  # 32
    Part.LineSegment(Vector(-70.564184, 21.5125, 0), Vector(-74.296875, 17.779809, 0)),  # 33
    Part.LineSegment(Vector(-74.296875, 17.779809, 0), Vector(-74.296875, -17.779809, 0)),  # 34
    Part.LineSegment(Vector(-74.296875, -17.779809, 0), Vector(-70.564184, -21.5125, 0)),  # 35
    Part.LineSegment(Vector(-70.564184, -21.5125, 0), Vector(-47.83093, -21.5125, 0)),  # 36
    Part.ArcOfCircle(Part.Circle(Vector(-47.83093, -28.8925, 0), Vector(0, 0, 1), 7.38), math.radians(31.134274), math.radians(90)),  # 37
    Part.ArcOfCircle(Part.Circle(Vector(0, 0, 0), Vector(0, 0, 1), 48.5), math.radians(-148.865726), math.radians(-120.558432)),  # 38
    Part.ArcOfCircle(Part.Circle(Vector(-23.244817, -39.37, 0), Vector(0, 0, 1), 2.78), math.radians(-120.558432), math.radians(-90)),  # 39
    Part.LineSegment(Vector(-23.244817, -42.15, 0), Vector(23.244817, -42.15, 0)),  # 40
    Part.ArcOfCircle(Part.Circle(Vector(23.244817, -39.37, 0), Vector(0, 0, 1), 2.78), math.radians(-90), math.radians(-59.441568)),  # 41
    Part.ArcOfCircle(Part.Circle(Vector(0, 0, 0), Vector(0, 0, 1), 48.5), math.radians(-59.441568), math.radians(-31.134274)),  # 42
    Part.ArcOfCircle(Part.Circle(Vector(47.83093, -28.8925, 0), Vector(0, 0, 1), 7.38), math.radians(90), math.radians(148.865726)),  # 43
    Part.LineSegment(Vector(47.83093, -21.5125, 0), Vector(70.564184, -21.5125, 0)),  # 44
    Part.LineSegment(Vector(70.564184, -21.5125, 0), Vector(74.296875, -17.779809, 0)),  # 45
    Part.LineSegment(Vector(74.296875, -17.779809, 0), Vector(74.296875, 17.779809, 0)),  # 46
    Part.LineSegment(Vector(74.296875, 17.779809, 0), Vector(70.564184, 21.5125, 0)),  # 47
], False)
sketch4.addConstraint([
    Sketcher.Constraint("Coincident", 0, 2, 1, 1),
    Sketcher.Constraint("Coincident", 1, 2, 2, 1),
    Sketcher.Constraint("Coincident", 2, 2, 3, 1),
    Sketcher.Constraint("Coincident", 3, 2, 4, 1),
    Sketcher.Constraint("Tangent", 4, 2, 5, 1),
    Sketcher.Constraint("Tangent", 5, 2, 6, 2),
    Sketcher.Constraint("Tangent", 6, 1, 7, 2),
    Sketcher.Constraint("Tangent", 7, 1, 8, 1),
    Sketcher.Constraint("Tangent", 8, 2, 9, 2),
    Sketcher.Constraint("Tangent", 9, 1, 10, 2),
    Sketcher.Constraint("Tangent", 10, 1, 11, 1),
    Sketcher.Constraint("Tangent", 11, 2, 12, 1),
    Sketcher.Constraint("Coincident", 12, 2, 13, 1),
    Sketcher.Constraint("Coincident", 13, 2, 14, 1),
    Sketcher.Constraint("Coincident", 14, 2, 15, 1),
    Sketcher.Constraint("Coincident", 15, 2, 16, 1),
    Sketcher.Constraint("Tangent", 16, 2, 17, 1),
    Sketcher.Constraint("Tangent", 17, 2, 18, 2),
    Sketcher.Constraint("Tangent", 18, 1, 19, 2),
    Sketcher.Constraint("Tangent", 19, 1, 20, 1),
    Sketcher.Constraint("Tangent", 20, 2, 21, 2),
    Sketcher.Constraint("Tangent", 21, 1, 22, 2),
    Sketcher.Constraint("Tangent", 22, 1, 23, 1),
    Sketcher.Constraint("Tangent", 23, 2, 0, 1),
    Sketcher.Constraint("Tangent", 24, 2, 25, 2),
    Sketcher.Constraint("Tangent", 25, 1, 26, 1),
    Sketcher.Constraint("Tangent", 26, 2, 27, 1),
    Sketcher.Constraint("Tangent", 27, 2, 28, 1),
    Sketcher.Constraint("Tangent", 28, 2, 29, 1),
    Sketcher.Constraint("Tangent", 29, 2, 30, 1),
    Sketcher.Constraint("Tangent", 30, 2, 31, 2),
    Sketcher.Constraint("Tangent", 31, 1, 32, 1),
    Sketcher.Constraint("Coincident", 32, 2, 33, 1),
    Sketcher.Constraint("Coincident", 33, 2, 34, 1),
    Sketcher.Constraint("Coincident", 34, 2, 35, 1),
    Sketcher.Constraint("Coincident", 35, 2, 36, 1),
    Sketcher.Constraint("Tangent", 36, 2, 37, 2),
    Sketcher.Constraint("Tangent", 37, 1, 38, 1),
    Sketcher.Constraint("Tangent", 38, 2, 39, 1),
    Sketcher.Constraint("Tangent", 39, 2, 40, 1),
    Sketcher.Constraint("Tangent", 40, 2, 41, 1),
    Sketcher.Constraint("Tangent", 41, 2, 42, 1),
    Sketcher.Constraint("Tangent", 42, 2, 43, 2),
    Sketcher.Constraint("Tangent", 43, 1, 44, 1),
    Sketcher.Constraint("Coincident", 44, 2, 45, 1),
    Sketcher.Constraint("Coincident", 45, 2, 46, 1),
    Sketcher.Constraint("Coincident", 46, 2, 47, 1),
    Sketcher.Constraint("Coincident", 47, 2, 24, 1),
    Sketcher.Constraint("Horizontal", 0),
    Sketcher.Constraint("Vertical", 2),
    Sketcher.Constraint("Horizontal", 4),
    Sketcher.Constraint("Horizontal", 8),
    Sketcher.Constraint("Horizontal", 12),
    Sketcher.Constraint("Vertical", 14),
    Sketcher.Constraint("Horizontal", 16),
    Sketcher.Constraint("Horizontal", 20),
    Sketcher.Constraint("Horizontal", 24),
    Sketcher.Constraint("Horizontal", 28),
    Sketcher.Constraint("Horizontal", 32),
    Sketcher.Constraint("Vertical", 34),
    Sketcher.Constraint("Horizontal", 36),
    Sketcher.Constraint("Horizontal", 40),
    Sketcher.Constraint("Horizontal", 44),
    Sketcher.Constraint("Vertical", 46),
    Sketcher.Constraint("Coincident", 6, 3, -1, 1),
    Sketcher.Constraint("Coincident", 10, 3, -1, 1),
    Sketcher.Constraint("Coincident", 18, 3, -1, 1),
    Sketcher.Constraint("Coincident", 22, 3, -1, 1),
    Sketcher.Constraint("Coincident", 26, 3, -1, 1),
    Sketcher.Constraint("Coincident", 30, 3, -1, 1),
    Sketcher.Constraint("Coincident", 38, 3, -1, 1),
    Sketcher.Constraint("Coincident", 42, 3, -1, 1),
    Sketcher.Constraint("Coincident", 25, 3, 23, 3),
    Sketcher.Constraint("Coincident", 27, 3, 21, 3),
    Sketcher.Constraint("Coincident", 29, 3, 19, 3),
    Sketcher.Constraint("Coincident", 31, 3, 17, 3),
    Sketcher.Constraint("Coincident", 37, 3, 11, 3),
    Sketcher.Constraint("Coincident", 39, 3, 9, 3),
    Sketcher.Constraint("Coincident", 41, 3, 7, 3),
    Sketcher.Constraint("Coincident", 43, 3, 5, 3),
    Sketcher.Constraint("Equal", 5, 7),
    Sketcher.Constraint("Equal", 7, 9),
    Sketcher.Constraint("Equal", 6, 10),
    Sketcher.Constraint("Equal", 9, 11),
    Sketcher.Constraint("Equal", 11, 17),
    Sketcher.Constraint("Equal", 10, 18),
    Sketcher.Constraint("Equal", 17, 19),
    Sketcher.Constraint("Equal", 19, 21),
    Sketcher.Constraint("Equal", 18, 22),
    Sketcher.Constraint("Equal", 21, 23),
    Sketcher.Constraint("Equal", 31, 37),
    Sketcher.Constraint("Symmetric", 0, 2, 12, 2, -1, 1),
    Sketcher.Constraint("Symmetric", 1, 2, 13, 2, -1, 1),
    Sketcher.Constraint("Symmetric", 3, 2, 15, 2, -1, 1),
    Sketcher.Constraint("Symmetric", 33, 2, 45, 2, -1, 1),
    Sketcher.Constraint("Symmetric", 3, 2, 12, 2, -2),
    Sketcher.Constraint("Perpendicular", 1, 3),
    Sketcher.Constraint("Perpendicular", 13, 15),
    Sketcher.Constraint("Parallel", 15, 33),
    Sketcher.Constraint("Perpendicular", 33, 35),
    Sketcher.Constraint("Perpendicular", 35, 45),
    Sketcher.Constraint("Perpendicular", 45, 47),
    Sketcher.Constraint("Horizontal", 2, 2, 13, 2),
    Sketcher.Constraint("Horizontal", 34, 2, 45, 2),
    Sketcher.Constraint("Horizontal", 33, 2, 46, 2),
    Sketcher.Constraint("Vertical", 9, 3, 19, 3),
    Sketcher.Constraint("Radius", 6, Q("2 in")),
    Sketcher.Constraint("Radius", 5, Q("0.2 in")),
    Sketcher.Constraint("DistanceY", 2, 2, 2, 1, Q("1.475 in")),
    Sketcher.Constraint("DistanceY", 7, 3, -1, 1, Q("1.55 in")),
    Sketcher.Constraint("Radius", 25, Q("7.38 mm")),
    Sketcher.Constraint("DistanceY", -1, 1, 0, 2, Q("0.9375 in")),
    Sketcher.Constraint("DistanceX", -1, 1, 1, 2, Q("3.015625 in")),
    Sketcher.Constraint("DistanceX", 24, 2, 24, 1, Q("22.733254 mm")),
    Sketcher.Constraint("DistanceY", 34, 2, 34, 1, Q("35.559618 mm")),
])
pad2 = body.newObject("PartDesign::Pad", "Pad001")
pad2.Profile = sketch4
pad2.Length = 0.01
pad2.Reversed = True

doc.recompute()
